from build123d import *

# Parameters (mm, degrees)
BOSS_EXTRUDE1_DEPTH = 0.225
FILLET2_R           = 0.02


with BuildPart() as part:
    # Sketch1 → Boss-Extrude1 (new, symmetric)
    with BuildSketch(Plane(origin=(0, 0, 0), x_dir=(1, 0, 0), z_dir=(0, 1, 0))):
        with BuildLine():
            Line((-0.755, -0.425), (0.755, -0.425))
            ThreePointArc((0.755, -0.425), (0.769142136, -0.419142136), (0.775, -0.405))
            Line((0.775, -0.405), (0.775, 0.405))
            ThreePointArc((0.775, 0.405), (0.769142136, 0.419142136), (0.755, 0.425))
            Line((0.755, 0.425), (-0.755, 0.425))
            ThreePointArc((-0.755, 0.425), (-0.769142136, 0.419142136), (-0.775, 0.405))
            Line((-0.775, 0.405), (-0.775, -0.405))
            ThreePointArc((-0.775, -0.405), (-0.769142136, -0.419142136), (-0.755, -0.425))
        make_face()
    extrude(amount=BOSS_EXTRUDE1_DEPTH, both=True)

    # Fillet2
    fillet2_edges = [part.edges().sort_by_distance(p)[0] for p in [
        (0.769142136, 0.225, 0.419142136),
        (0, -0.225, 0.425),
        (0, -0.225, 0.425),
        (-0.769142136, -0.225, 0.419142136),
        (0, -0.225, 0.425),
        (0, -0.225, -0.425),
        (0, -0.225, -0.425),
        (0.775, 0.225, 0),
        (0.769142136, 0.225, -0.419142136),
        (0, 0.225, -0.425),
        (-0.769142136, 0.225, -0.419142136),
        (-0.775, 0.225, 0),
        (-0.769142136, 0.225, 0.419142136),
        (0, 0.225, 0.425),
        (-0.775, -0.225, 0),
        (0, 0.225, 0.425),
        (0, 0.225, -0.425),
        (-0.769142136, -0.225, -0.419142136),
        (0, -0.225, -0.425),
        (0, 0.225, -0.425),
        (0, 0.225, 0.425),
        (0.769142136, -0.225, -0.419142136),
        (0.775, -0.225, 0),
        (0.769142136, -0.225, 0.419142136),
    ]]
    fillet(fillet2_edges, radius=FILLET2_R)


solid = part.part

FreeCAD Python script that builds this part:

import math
import FreeCAD as App
import Part
import Sketcher
from FreeCAD import Vector

doc = App.newDocument("Part")
body = doc.addObject("PartDesign::Body", "Body")

# Sketch on XZ plane
sketch1 = body.newObject("Sketcher::SketchObject", "Sketch")
sketch1.AttachmentSupport = (doc.getObject("XZ_Plane"), [""])
sketch1.MapMode = "FlatFace"
sketch1.addGeometry(Part.LineSegment(Vector(-0.755, 0.425, 0), Vector(0.755, 0.425, 0)), False)
sketch1.addGeometry(Part.ArcOfCircle(Part.Circle(Vector(0.755, 0.405, 0), Vector(0, 0, 1), 0.02), math.radians(-0.000003), math.radians(90.000003)), False)
sketch1.addGeometry(Part.LineSegment(Vector(0.775, 0.405, 0), Vector(0.775, -0.405, 0)), False)
sketch1.addGeometry(Part.ArcOfCircle(Part.Circle(Vector(0.755, -0.405, 0), Vector(0, 0, 1), 0.02), math.radians(-90.000003), math.radians(0.000003)), False)
sketch1.addGeometry(Part.LineSegment(Vector(0.755, -0.425, 0), Vector(-0.755, -0.425, 0)), False)
sketch1.addGeometry(Part.ArcOfCircle(Part.Circle(Vector(-0.755, -0.405, 0), Vector(0, 0, 1), 0.02), math.radians(179.999997), math.radians(270.000003)), False)
sketch1.addGeometry(Part.LineSegment(Vector(-0.775, -0.405, 0), Vector(-0.775, 0.405, 0)), False)
sketch1.addGeometry(Part.ArcOfCircle(Part.Circle(Vector(-0.755, 0.405, 0), Vector(0, 0, 1), 0.02), math.radians(89.999997), math.radians(180.000003)), False)
sketch1.addConstraint(Sketcher.Constraint("Tangent", 0, 2, 1, 2))
sketch1.addConstraint(Sketcher.Constraint("Tangent", 1, 1, 2, 1))
sketch1.addConstraint(Sketcher.Constraint("Tangent", 2, 2, 3, 2))
sketch1.addConstraint(Sketcher.Constraint("Tangent", 3, 1, 4, 1))
sketch1.addConstraint(Sketcher.Constraint("Tangent", 4, 2, 5, 2))
sketch1.addConstraint(Sketcher.Constraint("Tangent", 5, 1, 6, 1))
sketch1.addConstraint(Sketcher.Constraint("Tangent", 6, 2, 7, 2))
sketch1.addConstraint(Sketcher.Constraint("Tangent", 7, 1, 0, 1))
sketch1.addConstraint(Sketcher.Constraint("Horizontal", 0))
sketch1.addConstraint(Sketcher.Constraint("Vertical", 2))
sketch1.addConstraint(Sketcher.Constraint("Horizontal", 4))
sketch1.addConstraint(Sketcher.Constraint("Vertical", 6))
sketch1.addConstraint(Sketcher.Constraint("Equal", 1, 3))
sketch1.addConstraint(Sketcher.Constraint("Equal", 3, 5))
sketch1.addConstraint(Sketcher.Constraint("Equal", 5, 7))
sketch1.addConstraint(Sketcher.Constraint("Symmetric", 1, 3, 5, 3, -1, 1))
sketch1.addConstraint(Sketcher.Constraint("Radius", 1, 0.02))
sketch1.addConstraint(Sketcher.Constraint("DistanceX", 0, 1, 0, 2, 1.51))
sketch1.addConstraint(Sketcher.Constraint("DistanceY", 2, 2, 2, 1, 0.81))
pad1 = body.newObject("PartDesign::Pad", "Pad")
pad1.Profile = sketch1
pad1.Length = 0.45
pad1.Midplane = True
doc.recompute()

fillet = body.newObject("PartDesign::Fillet", "Fillet")
fillet.Base = (pad1, ["Edge1"])
fillet.UseAllEdges = True
fillet.Radius = 0.02

doc.recompute()
